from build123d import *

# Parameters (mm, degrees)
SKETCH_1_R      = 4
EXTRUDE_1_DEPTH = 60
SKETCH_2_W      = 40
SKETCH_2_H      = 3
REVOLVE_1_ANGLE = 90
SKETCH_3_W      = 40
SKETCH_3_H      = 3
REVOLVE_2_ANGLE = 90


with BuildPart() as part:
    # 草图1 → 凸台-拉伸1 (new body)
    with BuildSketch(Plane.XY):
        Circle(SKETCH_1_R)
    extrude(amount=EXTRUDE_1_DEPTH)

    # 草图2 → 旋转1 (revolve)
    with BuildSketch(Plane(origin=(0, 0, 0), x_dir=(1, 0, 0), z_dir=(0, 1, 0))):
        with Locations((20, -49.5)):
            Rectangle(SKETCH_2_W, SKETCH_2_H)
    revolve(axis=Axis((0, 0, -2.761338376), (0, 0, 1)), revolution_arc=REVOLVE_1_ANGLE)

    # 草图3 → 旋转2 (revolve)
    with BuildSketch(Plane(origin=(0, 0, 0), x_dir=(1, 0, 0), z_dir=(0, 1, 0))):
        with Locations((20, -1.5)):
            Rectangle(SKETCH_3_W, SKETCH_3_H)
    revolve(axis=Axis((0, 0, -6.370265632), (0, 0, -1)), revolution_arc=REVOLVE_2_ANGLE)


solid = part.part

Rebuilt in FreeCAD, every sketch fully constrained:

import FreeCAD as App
import Part
import Sketcher
from FreeCAD import Vector

doc = App.newDocument("Part")
params = doc.addObject("Spreadsheet::Sheet", "Params")
for row, (alias, value) in enumerate([
    ("sketch1_diameter", "8 mm"),
    ("pad1_length", "60 mm"),
    ("sketch2_width", "40 mm"),
    ("sketch2_height", "3 mm"),
    ("revolution_angle", "90 deg"),
    ("sketch3_width", "40 mm"),
    ("sketch3_height", "3 mm"),
    ("revolution2_angle", "90 deg"),
], start=1):
    params.set(f"A{row}", alias)
    params.set(f"B{row}", "=" + value)
    params.setAlias(f"B{row}", alias)

body = doc.addObject("PartDesign::Body", "Body")

sketch1 = body.newObject("Sketcher::SketchObject", "Sketch")
sketch1.AttachmentSupport = (doc.getObject("XY_Plane"), [""])
sketch1.MapMode = "FlatFace"
sketch1.addGeometry(Part.Circle(Vector(0, 0, 0), Vector(0, 0, 1), 4), False)
sketch1.addConstraint(Sketcher.Constraint("Coincident", 0, 3, -1, 1))
sketch1.addConstraint(Sketcher.Constraint("Diameter", 0, 8.0))
sketch1.setExpression("Constraints[1]", "Params.sketch1_diameter")
pad1 = body.newObject("PartDesign::Pad", "Pad")
pad1.Profile = sketch1
pad1.setExpression("Length", "Params.pad1_length")

sketch2 = body.newObject("Sketcher::SketchObject", "Sketch001")
sketch2.AttachmentSupport = (doc.getObject("XZ_Plane"), [""])
sketch2.MapMode = "FlatFace"
sketch2.addGeometry(Part.LineSegment(Vector(0, 48, 0), Vector(0, 51, 0)), False)
sketch2.addGeometry(Part.LineSegment(Vector(0, 51, 0), Vector(40, 51, 0)), False)
sketch2.addGeometry(Part.LineSegment(Vector(40, 51, 0), Vector(40, 48, 0)), False)
sketch2.addGeometry(Part.LineSegment(Vector(40, 48, 0), Vector(0, 48, 0)), False)
sketch2.addConstraint(Sketcher.Constraint("Coincident", 0, 2, 1, 1))
sketch2.addConstraint(Sketcher.Constraint("Coincident", 1, 2, 2, 1))
sketch2.addConstraint(Sketcher.Constraint("Coincident", 2, 2, 3, 1))
sketch2.addConstraint(Sketcher.Constraint("Coincident", 3, 2, 0, 1))
sketch2.addConstraint(Sketcher.Constraint("Vertical", 0))
sketch2.addConstraint(Sketcher.Constraint("Horizontal", 1))
sketch2.addConstraint(Sketcher.Constraint("Vertical", 2))
sketch2.addConstraint(Sketcher.Constraint("Horizontal", 3))
sketch2.addConstraint(Sketcher.Constraint("PointOnObject", 0, 2, -2))
sketch2.addConstraint(Sketcher.Constraint("DistanceX", 1, 1, 1, 2, 40.0))
sketch2.addConstraint(Sketcher.Constraint("DistanceY", 0, 1, 0, 2, 3.0))
sketch2.addConstraint(Sketcher.Constraint("DistanceY", -1, 1, 0, 2, 51.0))
sketch2.setExpression("Constraints[9]", "Params.sketch2_width")
sketch2.setExpression("Constraints[10]", "Params.sketch2_height")
revolution = body.newObject("PartDesign::Revolution", "Revolution")
revolution.Profile = sketch2
revolution.ReferenceAxis = (sketch2, ["V_Axis"])
revolution.setExpression("Angle", "Params.revolution_angle")

sketch3 = body.newObject("Sketcher::SketchObject", "Sketch002")
sketch3.AttachmentSupport = (doc.getObject("XZ_Plane"), [""])
sketch3.MapMode = "FlatFace"
sketch3.addGeometry(Part.LineSegment(Vector(0, 0, 0), Vector(0, 3, 0)), False)
sketch3.addGeometry(Part.LineSegment(Vector(0, 3, 0), Vector(40, 3, 0)), False)
sketch3.addGeometry(Part.LineSegment(Vector(40, 3, 0), Vector(40, 0, 0)), False)
sketch3.addGeometry(Part.LineSegment(Vector(40, 0, 0), Vector(0, 0, 0)), False)
sketch3.addConstraint(Sketcher.Constraint("Coincident", 0, 2, 1, 1))
sketch3.addConstraint(Sketcher.Constraint("Coincident", 1, 2, 2, 1))
sketch3.addConstraint(Sketcher.Constraint("Coincident", 2, 2, 3, 1))
sketch3.addConstraint(Sketcher.Constraint("Coincident", 3, 2, 0, 1))
sketch3.addConstraint(Sketcher.Constraint("Vertical", 0))
sketch3.addConstraint(Sketcher.Constraint("Horizontal", 1))
sketch3.addConstraint(Sketcher.Constraint("Vertical", 2))
sketch3.addConstraint(Sketcher.Constraint("Horizontal", 3))
sketch3.addConstraint(Sketcher.Constraint("Coincident", 3, 2, -1, 1))
sketch3.addConstraint(Sketcher.Constraint("DistanceX", 1, 1, 1, 2, 40.0))
sketch3.addConstraint(Sketcher.Constraint("DistanceY", 0, 1, 0, 2, 3.0))
sketch3.setExpression("Constraints[9]", "Params.sketch3_width")
sketch3.setExpression("Constraints[10]", "Params.sketch3_height")
revolution2 = body.newObject("PartDesign::Revolution", "Revolution001")
revolution2.Profile = sketch3
revolution2.ReferenceAxis = (sketch3, ["V_Axis"])
revolution2.setExpression("Angle", "Params.revolution2_angle")
revolution2.Reversed = True

doc.recompute()
